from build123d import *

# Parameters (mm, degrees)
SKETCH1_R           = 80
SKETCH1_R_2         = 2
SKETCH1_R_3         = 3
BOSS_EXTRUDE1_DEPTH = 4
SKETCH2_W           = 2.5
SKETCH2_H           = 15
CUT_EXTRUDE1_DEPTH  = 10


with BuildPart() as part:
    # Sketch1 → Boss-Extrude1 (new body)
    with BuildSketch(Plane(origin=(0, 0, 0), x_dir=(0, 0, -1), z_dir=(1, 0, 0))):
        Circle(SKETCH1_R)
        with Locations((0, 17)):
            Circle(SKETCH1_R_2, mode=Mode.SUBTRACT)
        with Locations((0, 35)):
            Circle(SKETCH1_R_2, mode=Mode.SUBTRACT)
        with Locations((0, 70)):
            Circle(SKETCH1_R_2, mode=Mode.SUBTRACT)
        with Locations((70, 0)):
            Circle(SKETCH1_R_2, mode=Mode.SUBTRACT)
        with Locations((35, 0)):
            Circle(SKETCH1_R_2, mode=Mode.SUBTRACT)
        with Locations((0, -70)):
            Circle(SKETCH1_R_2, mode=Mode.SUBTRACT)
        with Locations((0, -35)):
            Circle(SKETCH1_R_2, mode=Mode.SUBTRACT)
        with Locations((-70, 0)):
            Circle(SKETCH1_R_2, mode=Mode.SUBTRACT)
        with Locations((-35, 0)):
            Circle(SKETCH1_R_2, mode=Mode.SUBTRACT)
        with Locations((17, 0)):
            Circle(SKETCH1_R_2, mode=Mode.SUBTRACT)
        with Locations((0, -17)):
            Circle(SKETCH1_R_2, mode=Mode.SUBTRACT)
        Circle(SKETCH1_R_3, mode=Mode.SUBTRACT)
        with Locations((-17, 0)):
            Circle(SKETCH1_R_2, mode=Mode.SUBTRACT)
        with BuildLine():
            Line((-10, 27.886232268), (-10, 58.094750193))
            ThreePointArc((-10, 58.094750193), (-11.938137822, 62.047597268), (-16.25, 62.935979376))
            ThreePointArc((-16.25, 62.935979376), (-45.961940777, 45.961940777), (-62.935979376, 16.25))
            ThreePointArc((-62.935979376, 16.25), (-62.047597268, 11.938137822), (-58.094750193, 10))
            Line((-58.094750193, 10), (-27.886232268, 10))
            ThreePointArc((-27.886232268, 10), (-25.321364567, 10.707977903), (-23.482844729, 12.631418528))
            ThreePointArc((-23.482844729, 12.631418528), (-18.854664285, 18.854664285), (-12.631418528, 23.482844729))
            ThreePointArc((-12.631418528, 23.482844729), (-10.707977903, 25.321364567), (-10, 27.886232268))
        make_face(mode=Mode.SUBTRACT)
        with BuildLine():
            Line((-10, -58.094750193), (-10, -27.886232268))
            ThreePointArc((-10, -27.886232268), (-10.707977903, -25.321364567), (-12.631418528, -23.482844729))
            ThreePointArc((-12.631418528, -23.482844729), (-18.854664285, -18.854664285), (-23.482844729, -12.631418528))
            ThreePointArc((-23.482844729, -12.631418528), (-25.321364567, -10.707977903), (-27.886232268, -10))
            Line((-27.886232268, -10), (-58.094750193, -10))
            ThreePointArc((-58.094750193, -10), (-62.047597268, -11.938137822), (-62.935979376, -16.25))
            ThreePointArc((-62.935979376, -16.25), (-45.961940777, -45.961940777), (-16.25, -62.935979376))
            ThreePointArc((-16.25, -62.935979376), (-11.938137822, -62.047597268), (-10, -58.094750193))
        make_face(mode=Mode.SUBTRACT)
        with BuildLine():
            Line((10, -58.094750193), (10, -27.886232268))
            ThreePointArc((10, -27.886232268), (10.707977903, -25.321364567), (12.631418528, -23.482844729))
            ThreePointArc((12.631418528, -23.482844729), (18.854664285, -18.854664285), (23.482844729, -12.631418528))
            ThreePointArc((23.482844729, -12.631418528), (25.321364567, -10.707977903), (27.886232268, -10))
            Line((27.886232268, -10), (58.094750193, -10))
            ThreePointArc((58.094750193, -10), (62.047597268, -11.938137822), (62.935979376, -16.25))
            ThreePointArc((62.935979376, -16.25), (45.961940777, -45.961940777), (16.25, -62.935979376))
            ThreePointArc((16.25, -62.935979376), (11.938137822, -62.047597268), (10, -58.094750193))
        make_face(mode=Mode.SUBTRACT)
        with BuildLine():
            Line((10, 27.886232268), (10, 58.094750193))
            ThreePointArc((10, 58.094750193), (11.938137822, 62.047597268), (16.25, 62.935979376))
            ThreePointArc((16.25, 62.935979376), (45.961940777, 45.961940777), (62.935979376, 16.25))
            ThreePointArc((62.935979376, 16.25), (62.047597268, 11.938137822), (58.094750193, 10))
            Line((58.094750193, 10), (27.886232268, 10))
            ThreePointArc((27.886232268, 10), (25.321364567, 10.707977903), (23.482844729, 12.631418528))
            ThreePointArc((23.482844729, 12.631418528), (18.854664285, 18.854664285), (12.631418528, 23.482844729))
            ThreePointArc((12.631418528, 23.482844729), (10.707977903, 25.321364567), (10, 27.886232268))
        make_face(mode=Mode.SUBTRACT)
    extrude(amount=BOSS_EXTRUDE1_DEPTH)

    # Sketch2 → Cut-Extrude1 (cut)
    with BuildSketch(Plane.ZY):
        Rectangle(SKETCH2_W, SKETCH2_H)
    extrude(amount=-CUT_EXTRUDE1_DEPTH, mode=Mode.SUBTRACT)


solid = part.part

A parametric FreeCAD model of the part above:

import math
import FreeCAD as App
import Part
import Sketcher
Q = App.Units.Quantity


def add_polygon(sketch, points):
    """Adds a closed chain of lines whose ends are joined by coincident constraints."""
    first, n = sketch.GeometryCount, len(points)
    for a, b in zip(points, points[1:] + points[:1]):
        sketch.addGeometry(Part.LineSegment(App.Vector(*a, 0), App.Vector(*b, 0)), False)
    for i in range(n):
        sketch.addConstraint(Sketcher.Constraint("Coincident", first + i, 2, first + (i + 1) % n, 1))

doc = App.newDocument("Part")
body = doc.addObject("PartDesign::Body", "Body")

# Sketch on YZ plane
sketch1 = body.newObject("Sketcher::SketchObject", "Sketch")
sketch1.AttachmentSupport = (doc.getObject("YZ_Plane"), [""])
sketch1.MapMode = "FlatFace"
sketch1.addGeometry([
    Part.Circle(App.Vector(0, 0, 0), App.Vector(0, 0, 1), 80),  # 0
    Part.LineSegment(App.Vector(-27.9, 10, 0), App.Vector(-58.1, 10, 0)),  # 1
    Part.ArcOfCircle(Part.Circle(App.Vector(-58.1, 15, 0), App.Vector(0, 0, 1), 5), math.radians(166), math.radians(270)),  # 2
    Part.ArcOfCircle(Part.Circle(App.Vector(0, 0, 0), App.Vector(0, 0, 1), 65), math.radians(104), math.radians(166)),  # 3
    Part.ArcOfCircle(Part.Circle(App.Vector(-15, 58.1, 0), App.Vector(0, 0, 1), 5), math.radians(0), math.radians(104)),  # 4
    Part.LineSegment(App.Vector(-10, 58.1, 0), App.Vector(-10, 27.9, 0)),  # 5
    Part.ArcOfCircle(Part.Circle(App.Vector(-15, 27.9, 0), App.Vector(0, 0, 1), 5), math.radians(-62), math.radians(0)),  # 6
    Part.ArcOfCircle(Part.Circle(App.Vector(0, 0, 0), App.Vector(0, 0, 1), 26.7), math.radians(118), math.radians(152)),  # 7
    Part.ArcOfCircle(Part.Circle(App.Vector(-27.9, 15, 0), App.Vector(0, 0, 1), 5), math.radians(-90), math.radians(-28)),  # 8
    Part.Circle(App.Vector(-70, 0, 0), App.Vector(0, 0, 1), 2),  # 9
    Part.ArcOfCircle(Part.Circle(App.Vector(-58.1, -15, 0), App.Vector(0, 0, 1), 5), math.radians(90), math.radians(194)),  # 10
    Part.LineSegment(App.Vector(-58.1, -10, 0), App.Vector(-27.9, -10, 0)),  # 11
    Part.ArcOfCircle(Part.Circle(App.Vector(-27.9, -15, 0), App.Vector(0, 0, 1), 5), math.radians(28), math.radians(90)),  # 12
    Part.ArcOfCircle(Part.Circle(App.Vector(0, 0, 0), App.Vector(0, 0, 1), 26.7), math.radians(-152), math.radians(-118)),  # 13
    Part.ArcOfCircle(Part.Circle(App.Vector(-15, -27.9, 0), App.Vector(0, 0, 1), 5), math.radians(0), math.radians(62)),  # 14
    Part.LineSegment(App.Vector(-10, -27.9, 0), App.Vector(-10, -58.1, 0)),  # 15
    Part.ArcOfCircle(Part.Circle(App.Vector(-15, -58.1, 0), App.Vector(0, 0, 1), 5), math.radians(-104), math.radians(0)),  # 16
    Part.ArcOfCircle(Part.Circle(App.Vector(0, 0, 0), App.Vector(0, 0, 1), 65), math.radians(-166), math.radians(-104)),  # 17
    Part.Circle(App.Vector(-35, 0, 0), App.Vector(0, 0, 1), 2),  # 18
    Part.Circle(App.Vector(-17, 0, 0), App.Vector(0, 0, 1), 2),  # 19
    Part.Circle(App.Vector(0, 70, 0), App.Vector(0, 0, 1), 2),  # 20
    Part.Circle(App.Vector(0, 35, 0), App.Vector(0, 0, 1), 2),  # 21
    Part.Circle(App.Vector(0, 17, 0), App.Vector(0, 0, 1), 2),  # 22
    Part.LineSegment(App.Vector(58.1, 10, 0), App.Vector(27.9, 10, 0)),  # 23
    Part.ArcOfCircle(Part.Circle(App.Vector(27.9, 15, 0), App.Vector(0, 0, 1), 5), math.radians(-152), math.radians(-90)),  # 24
    Part.ArcOfCircle(Part.Circle(App.Vector(0, 0, 0), App.Vector(0, 0, 1), 26.7), math.radians(28), math.radians(62)),  # 25
    Part.ArcOfCircle(Part.Circle(App.Vector(15, 27.9, 0), App.Vector(0, 0, 1), 5), math.radians(180), math.radians(242)),  # 26
    Part.LineSegment(App.Vector(10, 27.9, 0), App.Vector(10, 58.1, 0)),  # 27
    Part.ArcOfCircle(Part.Circle(App.Vector(15, 58.1, 0), App.Vector(0, 0, 1), 5), math.radians(76), math.radians(180)),  # 28
    Part.ArcOfCircle(Part.Circle(App.Vector(0, 0, 0), App.Vector(0, 0, 1), 65), math.radians(14), math.radians(76)),  # 29
    Part.ArcOfCircle(Part.Circle(App.Vector(58.1, 15, 0), App.Vector(0, 0, 1), 5), math.radians(-90), math.radians(14)),  # 30
    Part.Circle(App.Vector(0, 0, 0), App.Vector(0, 0, 1), 3),  # 31
    Part.Circle(App.Vector(0, -17, 0), App.Vector(0, 0, 1), 2),  # 32
    Part.Circle(App.Vector(17, 0, 0), App.Vector(0, 0, 1), 2),  # 33
    Part.Circle(App.Vector(0, -35, 0), App.Vector(0, 0, 1), 2),  # 34
    Part.Circle(App.Vector(35, 0, 0), App.Vector(0, 0, 1), 2),  # 35
    Part.Circle(App.Vector(0, -70, 0), App.Vector(0, 0, 1), 2),  # 36
    Part.Circle(App.Vector(70, 0, 0), App.Vector(0, 0, 1), 2),  # 37
    Part.ArcOfCircle(Part.Circle(App.Vector(27.9, -15, 0), App.Vector(0, 0, 1), 5), math.radians(90), math.radians(152)),  # 38
    Part.LineSegment(App.Vector(27.9, -10, 0), App.Vector(58.1, -10, 0)),  # 39
    Part.ArcOfCircle(Part.Circle(App.Vector(58.1, -15, 0), App.Vector(0, 0, 1), 5), math.radians(-14), math.radians(90)),  # 40
    Part.ArcOfCircle(Part.Circle(App.Vector(0, 0, 0), App.Vector(0, 0, 1), 65), math.radians(-76), math.radians(-14)),  # 41
    Part.ArcOfCircle(Part.Circle(App.Vector(15, -58.1, 0), App.Vector(0, 0, 1), 5), math.radians(-180), math.radians(-76)),  # 42
    Part.LineSegment(App.Vector(10, -58.1, 0), App.Vector(10, -27.9, 0)),  # 43
    Part.ArcOfCircle(Part.Circle(App.Vector(15, -27.9, 0), App.Vector(0, 0, 1), 5), math.radians(118), math.radians(180)),  # 44
    Part.ArcOfCircle(Part.Circle(App.Vector(0, 0, 0), App.Vector(0, 0, 1), 26.7), math.radians(-62), math.radians(-28)),  # 45
], False)
sketch1.addConstraint([
    Sketcher.Constraint("Tangent", 1, 2, 2, 2),
    Sketcher.Constraint("Tangent", 2, 1, 3, 2),
    Sketcher.Constraint("Tangent", 3, 1, 4, 2),
    Sketcher.Constraint("Tangent", 4, 1, 5, 1),
    Sketcher.Constraint("Tangent", 5, 2, 6, 2),
    Sketcher.Constraint("Tangent", 6, 1, 7, 1),
    Sketcher.Constraint("Tangent", 7, 2, 8, 2),
    Sketcher.Constraint("Tangent", 8, 1, 1, 1),
    Sketcher.Constraint("Tangent", 10, 1, 11, 1),
    Sketcher.Constraint("Tangent", 11, 2, 12, 2),
    Sketcher.Constraint("Tangent", 12, 1, 13, 1),
    Sketcher.Constraint("Tangent", 13, 2, 14, 2),
    Sketcher.Constraint("Tangent", 14, 1, 15, 1),
    Sketcher.Constraint("Tangent", 15, 2, 16, 2),
    Sketcher.Constraint("Tangent", 16, 1, 17, 2),
    Sketcher.Constraint("Tangent", 17, 1, 10, 2),
    Sketcher.Constraint("Tangent", 23, 2, 24, 2),
    Sketcher.Constraint("Tangent", 24, 1, 25, 1),
    Sketcher.Constraint("Tangent", 25, 2, 26, 2),
    Sketcher.Constraint("Tangent", 26, 1, 27, 1),
    Sketcher.Constraint("Tangent", 27, 2, 28, 2),
    Sketcher.Constraint("Tangent", 28, 1, 29, 2),
    Sketcher.Constraint("Tangent", 29, 1, 30, 2),
    Sketcher.Constraint("Tangent", 30, 1, 23, 1),
    Sketcher.Constraint("Tangent", 38, 1, 39, 1),
    Sketcher.Constraint("Tangent", 39, 2, 40, 2),
    Sketcher.Constraint("Tangent", 40, 1, 41, 2),
    Sketcher.Constraint("Tangent", 41, 1, 42, 2),
    Sketcher.Constraint("Tangent", 42, 1, 43, 1),
    Sketcher.Constraint("Tangent", 43, 2, 44, 2),
    Sketcher.Constraint("Tangent", 44, 1, 45, 1),
    Sketcher.Constraint("Tangent", 45, 2, 38, 2),
    Sketcher.Constraint("Horizontal", 1),
    Sketcher.Constraint("Vertical", 5),
    Sketcher.Constraint("Horizontal", 11),
    Sketcher.Constraint("Vertical", 15),
    Sketcher.Constraint("Horizontal", 23),
    Sketcher.Constraint("Vertical", 27),
    Sketcher.Constraint("Horizontal", 39),
    Sketcher.Constraint("Vertical", 43),
    Sketcher.Constraint("Coincident", 0, 3, -1, 1),
    Sketcher.Constraint("Coincident", 3, 3, -1, 1),
    Sketcher.Constraint("Coincident", 7, 3, -1, 1),
    Sketcher.Constraint("Coincident", 13, 3, -1, 1),
    Sketcher.Constraint("Coincident", 17, 3, -1, 1),
    Sketcher.Constraint("Coincident", 25, 3, -1, 1),
    Sketcher.Constraint("Coincident", 29, 3, -1, 1),
    Sketcher.Constraint("Coincident", 31, 3, -1, 1),
    Sketcher.Constraint("Coincident", 41, 3, -1, 1),
    Sketcher.Constraint("Coincident", 45, 3, -1, 1),
    Sketcher.Constraint("Equal", 2, 4),
    Sketcher.Constraint("Equal", 4, 6),
    Sketcher.Constraint("Equal", 6, 8),
    Sketcher.Constraint("Equal", 8, 10),
    Sketcher.Constraint("Equal", 10, 12),
    Sketcher.Constraint("Equal", 7, 13),
    Sketcher.Constraint("Equal", 12, 14),
    Sketcher.Constraint("Equal", 14, 16),
    Sketcher.Constraint("Equal", 3, 17),
    Sketcher.Constraint("Equal", 9, 18),
    Sketcher.Constraint("Equal", 18, 19),
    Sketcher.Constraint("Equal", 19, 20),
    Sketcher.Constraint("Equal", 20, 21),
    Sketcher.Constraint("Equal", 21, 22),
    Sketcher.Constraint("Equal", 16, 24),
    Sketcher.Constraint("Equal", 13, 25),
    Sketcher.Constraint("Equal", 24, 26),
    Sketcher.Constraint("Equal", 26, 28),
    Sketcher.Constraint("Equal", 17, 29),
    Sketcher.Constraint("Equal", 28, 30),
    Sketcher.Constraint("Equal", 22, 32),
    Sketcher.Constraint("Equal", 32, 33),
    Sketcher.Constraint("Equal", 33, 34),
    Sketcher.Constraint("Equal", 34, 35),
    Sketcher.Constraint("Equal", 35, 36),
    Sketcher.Constraint("Equal", 36, 37),
    Sketcher.Constraint("Equal", 30, 38),
    Sketcher.Constraint("Equal", 38, 40),
    Sketcher.Constraint("Equal", 29, 41),
    Sketcher.Constraint("Equal", 40, 42),
    Sketcher.Constraint("Equal", 42, 44),
    Sketcher.Constraint("Equal", 25, 45),
    Sketcher.Constraint("Symmetric", 22, 3, 32, 3, -1, 1),
    Sketcher.Constraint("Symmetric", 19, 3, 33, 3, -1, 1),
    Sketcher.Constraint("Symmetric", 21, 3, 34, 3, -1, 1),
    Sketcher.Constraint("Symmetric", 18, 3, 35, 3, -1, 1),
    Sketcher.Constraint("Symmetric", 20, 3, 36, 3, -1, 1),
    Sketcher.Constraint("Symmetric", 9, 3, 37, 3, -1, 1),
    Sketcher.Constraint("PointOnObject", 9, 3, -1),
    Sketcher.Constraint("PointOnObject", 18, 3, -1),
    Sketcher.Constraint("PointOnObject", 19, 3, -1),
    Sketcher.Constraint("PointOnObject", 20, 3, -2),
    Sketcher.Constraint("PointOnObject", 21, 3, -2),
    Sketcher.Constraint("PointOnObject", 22, 3, -2),
    Sketcher.Constraint("Horizontal", 8, 3, 24, 3),
    Sketcher.Constraint("Horizontal", 6, 3, 26, 3),
    Sketcher.Constraint("Horizontal", 12, 3, 38, 3),
    Sketcher.Constraint("Horizontal", 16, 3, 42, 3),
    Sketcher.Constraint("Vertical", 2, 3, 10, 3),
    Sketcher.Constraint("Vertical", 6, 3, 14, 3),
    Sketcher.Constraint("Equal", 39, 5),
    Sketcher.Constraint("Diameter", 0, Q("160 mm")),
    Sketcher.Constraint("Diameter", 9, Q("4 mm")),
    Sketcher.Constraint("Diameter", 31, Q("6 mm")),
    Sketcher.Constraint("Radius", 2, Q("5 mm")),
    Sketcher.Constraint("Radius", 3, Q("65 mm")),
    Sketcher.Constraint("DistanceY", -1, 1, 2, 3, Q("15 mm")),
    Sketcher.Constraint("DistanceX", 9, 3, -1, 1, Q("70 mm")),
    Sketcher.Constraint("DistanceX", 18, 3, -1, 1, Q("35 mm")),
    Sketcher.Constraint("DistanceX", 19, 3, -1, 1, Q("17 mm")),
    Sketcher.Constraint("DistanceY", -1, 1, 20, 3, Q("70 mm")),
    Sketcher.Constraint("DistanceY", -1, 1, 21, 3, Q("35 mm")),
    Sketcher.Constraint("DistanceY", -1, 1, 22, 3, Q("17 mm")),
    Sketcher.Constraint("Radius", 7, Q("26.664522 mm")),
])
pad1 = body.newObject("PartDesign::Pad", "Pad")
pad1.Profile = sketch1
pad1.Length = 4

# Sketch on YZ plane
sketch2 = body.newObject("Sketcher::SketchObject", "Sketch001")
sketch2.AttachmentSupport = (doc.getObject("YZ_Plane"), [""])
sketch2.MapMode = "FlatFace"
add_polygon(sketch2, [(7.5, -1.2), (-7.5, -1.2), (-7.5, 1.2), (7.5, 1.2)])  # lines 0-3
sketch2.addConstraint([
    Sketcher.Constraint("Horizontal", 0),
    Sketcher.Constraint("Vertical", 1),
    Sketcher.Constraint("Horizontal", 2),
    Sketcher.Constraint("Vertical", 3),
    Sketcher.Constraint("Symmetric", 0, 2, 2, 2, -1, 1),
    Sketcher.Constraint("DistanceX", 0, 2, 0, 1, Q("15 mm")),
    Sketcher.Constraint("DistanceY", 1, 1, 1, 2, Q("2.5 mm")),
])
pocket1 = body.newObject("PartDesign::Pocket", "Pocket")
pocket1.Profile = sketch2
pocket1.Length = 10
pocket1.Reversed = True

doc.recompute()
